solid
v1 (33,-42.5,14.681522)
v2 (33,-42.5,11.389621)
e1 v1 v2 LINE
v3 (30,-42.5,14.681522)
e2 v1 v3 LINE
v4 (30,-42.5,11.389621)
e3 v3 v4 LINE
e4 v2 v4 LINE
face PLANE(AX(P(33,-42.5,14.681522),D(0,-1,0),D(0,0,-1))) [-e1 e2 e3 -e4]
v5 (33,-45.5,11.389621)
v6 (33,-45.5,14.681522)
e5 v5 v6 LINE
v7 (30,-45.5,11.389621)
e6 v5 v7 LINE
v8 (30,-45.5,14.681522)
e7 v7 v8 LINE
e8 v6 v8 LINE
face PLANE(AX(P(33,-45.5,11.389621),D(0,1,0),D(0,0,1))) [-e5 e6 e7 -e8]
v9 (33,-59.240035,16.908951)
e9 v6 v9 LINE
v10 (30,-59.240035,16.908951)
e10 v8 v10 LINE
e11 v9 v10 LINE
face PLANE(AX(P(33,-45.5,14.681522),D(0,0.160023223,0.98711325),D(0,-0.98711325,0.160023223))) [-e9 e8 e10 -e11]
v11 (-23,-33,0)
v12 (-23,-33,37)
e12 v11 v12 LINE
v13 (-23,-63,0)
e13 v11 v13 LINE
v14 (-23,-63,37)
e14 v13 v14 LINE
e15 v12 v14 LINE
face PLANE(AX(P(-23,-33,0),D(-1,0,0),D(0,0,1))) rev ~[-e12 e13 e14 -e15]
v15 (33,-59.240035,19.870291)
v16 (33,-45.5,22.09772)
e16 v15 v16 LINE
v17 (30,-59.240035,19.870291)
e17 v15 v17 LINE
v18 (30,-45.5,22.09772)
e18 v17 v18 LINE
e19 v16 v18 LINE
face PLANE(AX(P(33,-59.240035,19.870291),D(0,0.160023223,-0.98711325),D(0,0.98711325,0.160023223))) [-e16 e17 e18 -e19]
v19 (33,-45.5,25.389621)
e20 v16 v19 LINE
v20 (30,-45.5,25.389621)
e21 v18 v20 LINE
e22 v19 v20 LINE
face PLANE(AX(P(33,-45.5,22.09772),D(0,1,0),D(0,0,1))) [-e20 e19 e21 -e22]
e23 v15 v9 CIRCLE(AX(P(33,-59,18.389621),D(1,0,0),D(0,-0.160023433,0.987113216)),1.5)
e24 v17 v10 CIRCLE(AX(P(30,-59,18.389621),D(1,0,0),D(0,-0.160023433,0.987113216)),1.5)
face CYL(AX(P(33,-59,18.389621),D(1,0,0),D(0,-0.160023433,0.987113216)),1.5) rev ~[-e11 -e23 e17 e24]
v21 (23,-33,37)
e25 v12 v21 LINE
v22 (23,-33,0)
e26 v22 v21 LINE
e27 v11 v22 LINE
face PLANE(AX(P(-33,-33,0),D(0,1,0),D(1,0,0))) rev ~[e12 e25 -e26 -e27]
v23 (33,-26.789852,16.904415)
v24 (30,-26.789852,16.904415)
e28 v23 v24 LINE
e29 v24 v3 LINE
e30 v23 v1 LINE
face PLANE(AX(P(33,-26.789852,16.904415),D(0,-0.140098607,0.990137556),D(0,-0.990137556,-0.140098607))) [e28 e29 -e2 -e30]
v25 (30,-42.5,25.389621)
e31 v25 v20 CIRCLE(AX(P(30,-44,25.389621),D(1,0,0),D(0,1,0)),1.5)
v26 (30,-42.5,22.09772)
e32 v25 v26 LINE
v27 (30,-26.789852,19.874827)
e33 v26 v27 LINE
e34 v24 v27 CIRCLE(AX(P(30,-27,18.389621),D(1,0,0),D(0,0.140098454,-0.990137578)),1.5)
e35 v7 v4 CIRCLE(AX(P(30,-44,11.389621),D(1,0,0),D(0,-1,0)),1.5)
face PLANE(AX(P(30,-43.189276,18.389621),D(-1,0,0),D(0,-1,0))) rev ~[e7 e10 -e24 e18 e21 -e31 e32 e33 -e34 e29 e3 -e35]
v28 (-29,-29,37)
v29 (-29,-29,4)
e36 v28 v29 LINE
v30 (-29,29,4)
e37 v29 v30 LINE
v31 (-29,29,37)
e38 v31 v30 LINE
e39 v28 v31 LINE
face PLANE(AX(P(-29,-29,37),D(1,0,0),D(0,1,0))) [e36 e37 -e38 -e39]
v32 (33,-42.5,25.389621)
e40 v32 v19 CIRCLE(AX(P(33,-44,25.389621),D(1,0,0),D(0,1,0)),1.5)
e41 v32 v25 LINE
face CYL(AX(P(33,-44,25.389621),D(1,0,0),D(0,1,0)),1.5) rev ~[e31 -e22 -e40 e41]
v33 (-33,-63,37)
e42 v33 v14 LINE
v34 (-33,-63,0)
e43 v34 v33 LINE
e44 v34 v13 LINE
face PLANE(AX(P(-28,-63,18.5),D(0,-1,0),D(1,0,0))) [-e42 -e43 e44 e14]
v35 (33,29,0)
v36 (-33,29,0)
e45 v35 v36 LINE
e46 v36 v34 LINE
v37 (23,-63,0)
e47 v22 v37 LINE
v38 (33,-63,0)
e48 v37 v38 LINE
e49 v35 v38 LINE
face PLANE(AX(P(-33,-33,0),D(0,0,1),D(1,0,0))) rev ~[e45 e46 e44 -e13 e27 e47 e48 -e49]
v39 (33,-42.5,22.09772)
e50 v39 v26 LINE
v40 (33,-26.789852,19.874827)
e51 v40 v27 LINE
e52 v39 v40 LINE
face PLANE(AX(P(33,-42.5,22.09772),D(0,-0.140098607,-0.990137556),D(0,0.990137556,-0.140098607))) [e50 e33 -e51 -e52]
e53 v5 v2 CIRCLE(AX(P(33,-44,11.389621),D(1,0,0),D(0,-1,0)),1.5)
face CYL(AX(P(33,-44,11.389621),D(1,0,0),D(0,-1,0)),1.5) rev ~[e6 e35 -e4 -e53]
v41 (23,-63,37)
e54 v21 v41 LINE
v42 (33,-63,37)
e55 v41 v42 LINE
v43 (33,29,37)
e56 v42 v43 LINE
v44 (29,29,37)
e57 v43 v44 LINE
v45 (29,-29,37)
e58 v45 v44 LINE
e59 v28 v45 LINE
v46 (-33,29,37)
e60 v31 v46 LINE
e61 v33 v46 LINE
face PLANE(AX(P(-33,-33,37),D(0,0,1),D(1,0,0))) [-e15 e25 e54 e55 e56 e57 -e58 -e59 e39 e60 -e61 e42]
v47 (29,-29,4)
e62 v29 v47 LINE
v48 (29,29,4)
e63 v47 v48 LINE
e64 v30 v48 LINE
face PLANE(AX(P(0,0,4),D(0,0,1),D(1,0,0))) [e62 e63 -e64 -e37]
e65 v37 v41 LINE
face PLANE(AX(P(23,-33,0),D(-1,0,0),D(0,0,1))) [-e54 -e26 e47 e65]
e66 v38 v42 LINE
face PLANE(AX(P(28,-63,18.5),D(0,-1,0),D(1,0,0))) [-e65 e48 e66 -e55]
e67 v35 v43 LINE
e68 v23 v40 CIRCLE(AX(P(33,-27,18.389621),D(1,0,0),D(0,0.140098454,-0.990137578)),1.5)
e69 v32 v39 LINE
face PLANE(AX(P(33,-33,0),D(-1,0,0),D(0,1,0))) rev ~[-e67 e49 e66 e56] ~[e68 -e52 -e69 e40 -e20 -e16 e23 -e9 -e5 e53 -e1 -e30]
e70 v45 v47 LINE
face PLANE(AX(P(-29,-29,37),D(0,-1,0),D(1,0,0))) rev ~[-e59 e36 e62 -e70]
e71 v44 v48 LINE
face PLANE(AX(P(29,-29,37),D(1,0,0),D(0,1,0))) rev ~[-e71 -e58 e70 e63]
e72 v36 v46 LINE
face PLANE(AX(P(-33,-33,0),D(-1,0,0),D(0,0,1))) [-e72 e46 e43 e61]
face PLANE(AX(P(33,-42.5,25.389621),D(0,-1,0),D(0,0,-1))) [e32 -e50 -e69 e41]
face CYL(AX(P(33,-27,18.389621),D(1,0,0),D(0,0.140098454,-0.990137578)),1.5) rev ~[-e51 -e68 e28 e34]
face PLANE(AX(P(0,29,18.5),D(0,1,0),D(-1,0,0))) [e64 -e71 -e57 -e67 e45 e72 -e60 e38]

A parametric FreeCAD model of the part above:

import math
import FreeCAD as App
import Part
import Sketcher
from FreeCAD import Vector


def add_polygon(sketch, points):
    """Adds a closed chain of lines whose ends are joined by coincident constraints."""
    first, n = sketch.GeometryCount, len(points)
    for a, b in zip(points, points[1:] + points[:1]):
        sketch.addGeometry(Part.LineSegment(App.Vector(*a, 0), App.Vector(*b, 0)), False)
    for i in range(n):
        sketch.addConstraint(Sketcher.Constraint("Coincident", first + i, 2, first + (i + 1) % n, 1))

doc = App.newDocument("Part")
body = doc.addObject("PartDesign::Body", "Body")

# Sketch on XY plane
sketch1 = body.newObject("Sketcher::SketchObject", "Sketch")
sketch1.AttachmentSupport = (doc.getObject("XY_Plane"), [""])
sketch1.MapMode = "FlatFace"
add_polygon(sketch1, [(-33, 33), (-33, -33), (33, -33), (33, 33)])  # lines 0-3
sketch1.addConstraint(Sketcher.Constraint("Vertical", 0))
sketch1.addConstraint(Sketcher.Constraint("Horizontal", 1))
sketch1.addConstraint(Sketcher.Constraint("Vertical", 2))
sketch1.addConstraint(Sketcher.Constraint("Horizontal", 3))
sketch1.addConstraint(Sketcher.Constraint("Symmetric", 0, 2, 2, 2, -1, 1))
sketch1.addConstraint(Sketcher.Constraint("Equal", 3, 0))
sketch1.addConstraint(Sketcher.Constraint("DistanceX", 1, 1, 1, 2, 66.0))
pad1 = body.newObject("PartDesign::Pad", "Pad")
pad1.Profile = sketch1
pad1.Length = 37

# Sketch on XY plane
sketch2 = body.newObject("Sketcher::SketchObject", "Sketch001")
sketch2.AttachmentSupport = (doc.getObject("XY_Plane"), [""])
sketch2.MapMode = "FlatFace"
sketch2.AttachmentOffset = App.Placement(Vector(0, 0, 37), App.Rotation())
add_polygon(sketch2, [(-29, 29), (-29, -29), (29, -29), (29, 29)])  # lines 0-3
sketch2.addConstraint(Sketcher.Constraint("Vertical", 0))
sketch2.addConstraint(Sketcher.Constraint("Horizontal", 1))
sketch2.addConstraint(Sketcher.Constraint("Vertical", 2))
sketch2.addConstraint(Sketcher.Constraint("Horizontal", 3))
sketch2.addConstraint(Sketcher.Constraint("Symmetric", 0, 2, 2, 2, -1, 1))
sketch2.addConstraint(Sketcher.Constraint("Equal", 3, 0))
sketch2.addConstraint(Sketcher.Constraint("DistanceX", 1, 1, 1, 2, 58.0))
pocket1 = body.newObject("PartDesign::Pocket", "Pocket")
pocket1.Profile = sketch2
pocket1.Length = 33

# Sketch on XZ plane
sketch3 = body.newObject("Sketcher::SketchObject", "Sketch002")
sketch3.AttachmentSupport = (doc.getObject("XZ_Plane"), [""])
sketch3.MapMode = "FlatFace"
sketch3.AttachmentOffset = App.Placement(Vector(0, 0, 33), App.Rotation())
add_polygon(sketch3, [(-33, 37), (-33, 0), (-23, 0), (-23, 37)])  # lines 0-3
add_polygon(sketch3, [(23, 37), (23, 0), (33, 0), (33, 37)])  # lines 4-7
sketch3.addConstraint(Sketcher.Constraint("Vertical", 0))
sketch3.addConstraint(Sketcher.Constraint("Horizontal", 1))
sketch3.addConstraint(Sketcher.Constraint("Vertical", 2))
sketch3.addConstraint(Sketcher.Constraint("Horizontal", 3))
sketch3.addConstraint(Sketcher.Constraint("Vertical", 4))
sketch3.addConstraint(Sketcher.Constraint("Horizontal", 5))
sketch3.addConstraint(Sketcher.Constraint("Vertical", 6))
sketch3.addConstraint(Sketcher.Constraint("Horizontal", 7))
sketch3.addConstraint(Sketcher.Constraint("Symmetric", 1, 2, 4, 2, -1, 1))
sketch3.addConstraint(Sketcher.Constraint("Symmetric", 0, 2, 5, 2, -2))
sketch3.addConstraint(Sketcher.Constraint("Horizontal", 3, 2, 6, 2))
sketch3.addConstraint(Sketcher.Constraint("DistanceX", 1, 1, 1, 2, 10.0))
sketch3.addConstraint(Sketcher.Constraint("DistanceY", 0, 2, 0, 1, 37.0))
sketch3.addConstraint(Sketcher.Constraint("DistanceX", 0, 2, -1, 1, 33.0))
pad2 = body.newObject("PartDesign::Pad", "Pad001")
pad2.Profile = sketch3
pad2.Length = 30

# Sketch on XZ plane
sketch4 = body.newObject("Sketcher::SketchObject", "Sketch003")
sketch4.AttachmentSupport = (doc.getObject("XZ_Plane"), [""])
sketch4.MapMode = "FlatFace"
sketch4.AttachmentOffset = App.Placement(Vector(0, 0, -33), App.Rotation())
add_polygon(sketch4, [(33, 37), (33, 0), (-33, 0), (-33, 37)])  # lines 0-3
sketch4.addConstraint(Sketcher.Constraint("Vertical", 0))
sketch4.addConstraint(Sketcher.Constraint("Horizontal", 1))
sketch4.addConstraint(Sketcher.Constraint("Vertical", 2))
sketch4.addConstraint(Sketcher.Constraint("Horizontal", 3))
sketch4.addConstraint(Sketcher.Constraint("Symmetric", 0, 2, 1, 2, -1, 1))
sketch4.addConstraint(Sketcher.Constraint("DistanceX", 1, 2, 1, 1, 66.0))
sketch4.addConstraint(Sketcher.Constraint("DistanceY", 0, 2, 0, 1, 37.0))
pocket2 = body.newObject("PartDesign::Pocket", "Pocket001")
pocket2.Profile = sketch4
pocket2.Length = 4
pocket2.Reversed = True

# Sketch on YZ plane
sketch5 = body.newObject("Sketcher::SketchObject", "Sketch004")
sketch5.AttachmentSupport = (doc.getObject("YZ_Plane"), [""])
sketch5.MapMode = "FlatFace"
sketch5.AttachmentOffset = App.Placement(Vector(0, 0, 33), App.Rotation())
sketch5.addGeometry(Part.LineSegment(Vector(-45.5, 25.4, 0), Vector(-45.5, 22.1, 0)), False)
sketch5.addGeometry(Part.LineSegment(Vector(-45.5, 22.1, 0), Vector(-59.2, 19.9, 0)), False)
sketch5.addGeometry(Part.ArcOfCircle(Part.Circle(Vector(-59, 18.4, 0), Vector(0, 0, 1), 1.5), math.radians(99), math.radians(261)), False)
sketch5.addGeometry(Part.LineSegment(Vector(-59.2, 16.9, 0), Vector(-45.5, 14.7, 0)), False)
sketch5.addGeometry(Part.LineSegment(Vector(-45.5, 14.7, 0), Vector(-45.5, 11.4, 0)), False)
sketch5.addGeometry(Part.ArcOfCircle(Part.Circle(Vector(-44, 11.4, 0), Vector(0, 0, 1), 1.5), math.radians(180), math.radians(360)), False)
sketch5.addGeometry(Part.LineSegment(Vector(-42.5, 11.4, 0), Vector(-42.5, 14.7, 0)), False)
sketch5.addGeometry(Part.LineSegment(Vector(-42.5, 14.7, 0), Vector(-26.8, 16.9, 0)), False)
sketch5.addGeometry(Part.ArcOfCircle(Part.Circle(Vector(-27, 18.4, 0), Vector(0, 0, 1), 1.5), math.radians(-82), math.radians(82)), False)
sketch5.addGeometry(Part.LineSegment(Vector(-26.8, 19.9, 0), Vector(-42.5, 22.1, 0)), False)
sketch5.addGeometry(Part.LineSegment(Vector(-42.5, 22.1, 0), Vector(-42.5, 25.4, 0)), False)
sketch5.addGeometry(Part.ArcOfCircle(Part.Circle(Vector(-44, 25.4, 0), Vector(0, 0, 1), 1.5), math.radians(0), math.radians(180)), False)
sketch5.addConstraint(Sketcher.Constraint("Coincident", 0, 2, 1, 1))
sketch5.addConstraint(Sketcher.Constraint("Tangent", 1, 2, 2, 1))
sketch5.addConstraint(Sketcher.Constraint("Tangent", 2, 2, 3, 1))
sketch5.addConstraint(Sketcher.Constraint("Coincident", 3, 2, 4, 1))
sketch5.addConstraint(Sketcher.Constraint("Tangent", 4, 2, 5, 1))
sketch5.addConstraint(Sketcher.Constraint("Tangent", 5, 2, 6, 1))
sketch5.addConstraint(Sketcher.Constraint("Coincident", 6, 2, 7, 1))
sketch5.addConstraint(Sketcher.Constraint("Tangent", 7, 2, 8, 1))
sketch5.addConstraint(Sketcher.Constraint("Tangent", 8, 2, 9, 1))
sketch5.addConstraint(Sketcher.Constraint("Coincident", 9, 2, 10, 1))
sketch5.addConstraint(Sketcher.Constraint("Tangent", 10, 2, 11, 1))
sketch5.addConstraint(Sketcher.Constraint("Tangent", 11, 2, 0, 1))
sketch5.addConstraint(Sketcher.Constraint("Vertical", 0))
sketch5.addConstraint(Sketcher.Constraint("Vertical", 4))
sketch5.addConstraint(Sketcher.Constraint("Vertical", 6))
sketch5.addConstraint(Sketcher.Constraint("Vertical", 10))
sketch5.addConstraint(Sketcher.Constraint("Equal", 2, 5))
sketch5.addConstraint(Sketcher.Constraint("Equal", 5, 8))
sketch5.addConstraint(Sketcher.Constraint("Equal", 8, 11))
sketch5.addConstraint(Sketcher.Constraint("Horizontal", 2, 3, 8, 3))
sketch5.addConstraint(Sketcher.Constraint("Horizontal", 3, 2, 6, 2))
sketch5.addConstraint(Sketcher.Constraint("Horizontal", 0, 2, 9, 2))
sketch5.addConstraint(Sketcher.Constraint("Vertical", 5, 3, 11, 3))
sketch5.addConstraint(Sketcher.Constraint("Vertical", 1, 2, 2, 2))
sketch5.addConstraint(Sketcher.Constraint("Equal", 0, 4))
sketch5.addConstraint(Sketcher.Constraint("Radius", 2, 1.5))
sketch5.addConstraint(Sketcher.Constraint("DistanceX", 2, 3, -1, 1, 59.0))
sketch5.addConstraint(Sketcher.Constraint("DistanceX", 5, 3, -1, 1, 44.0))
sketch5.addConstraint(Sketcher.Constraint("DistanceX", 8, 3, -1, 1, 27.0))
sketch5.addConstraint(Sketcher.Constraint("DistanceY", 5, 3, 2, 3, 7.0))
sketch5.addConstraint(Sketcher.Constraint("DistanceY", 0, 2, 0, 1, 3.291901))
sketch5.addConstraint(Sketcher.Constraint("DistanceY", -1, 1, 2, 3, 18.389621))
pocket3 = body.newObject("PartDesign::Pocket", "Pocket002")
pocket3.Profile = sketch5
pocket3.Length = 3

doc.recompute()
